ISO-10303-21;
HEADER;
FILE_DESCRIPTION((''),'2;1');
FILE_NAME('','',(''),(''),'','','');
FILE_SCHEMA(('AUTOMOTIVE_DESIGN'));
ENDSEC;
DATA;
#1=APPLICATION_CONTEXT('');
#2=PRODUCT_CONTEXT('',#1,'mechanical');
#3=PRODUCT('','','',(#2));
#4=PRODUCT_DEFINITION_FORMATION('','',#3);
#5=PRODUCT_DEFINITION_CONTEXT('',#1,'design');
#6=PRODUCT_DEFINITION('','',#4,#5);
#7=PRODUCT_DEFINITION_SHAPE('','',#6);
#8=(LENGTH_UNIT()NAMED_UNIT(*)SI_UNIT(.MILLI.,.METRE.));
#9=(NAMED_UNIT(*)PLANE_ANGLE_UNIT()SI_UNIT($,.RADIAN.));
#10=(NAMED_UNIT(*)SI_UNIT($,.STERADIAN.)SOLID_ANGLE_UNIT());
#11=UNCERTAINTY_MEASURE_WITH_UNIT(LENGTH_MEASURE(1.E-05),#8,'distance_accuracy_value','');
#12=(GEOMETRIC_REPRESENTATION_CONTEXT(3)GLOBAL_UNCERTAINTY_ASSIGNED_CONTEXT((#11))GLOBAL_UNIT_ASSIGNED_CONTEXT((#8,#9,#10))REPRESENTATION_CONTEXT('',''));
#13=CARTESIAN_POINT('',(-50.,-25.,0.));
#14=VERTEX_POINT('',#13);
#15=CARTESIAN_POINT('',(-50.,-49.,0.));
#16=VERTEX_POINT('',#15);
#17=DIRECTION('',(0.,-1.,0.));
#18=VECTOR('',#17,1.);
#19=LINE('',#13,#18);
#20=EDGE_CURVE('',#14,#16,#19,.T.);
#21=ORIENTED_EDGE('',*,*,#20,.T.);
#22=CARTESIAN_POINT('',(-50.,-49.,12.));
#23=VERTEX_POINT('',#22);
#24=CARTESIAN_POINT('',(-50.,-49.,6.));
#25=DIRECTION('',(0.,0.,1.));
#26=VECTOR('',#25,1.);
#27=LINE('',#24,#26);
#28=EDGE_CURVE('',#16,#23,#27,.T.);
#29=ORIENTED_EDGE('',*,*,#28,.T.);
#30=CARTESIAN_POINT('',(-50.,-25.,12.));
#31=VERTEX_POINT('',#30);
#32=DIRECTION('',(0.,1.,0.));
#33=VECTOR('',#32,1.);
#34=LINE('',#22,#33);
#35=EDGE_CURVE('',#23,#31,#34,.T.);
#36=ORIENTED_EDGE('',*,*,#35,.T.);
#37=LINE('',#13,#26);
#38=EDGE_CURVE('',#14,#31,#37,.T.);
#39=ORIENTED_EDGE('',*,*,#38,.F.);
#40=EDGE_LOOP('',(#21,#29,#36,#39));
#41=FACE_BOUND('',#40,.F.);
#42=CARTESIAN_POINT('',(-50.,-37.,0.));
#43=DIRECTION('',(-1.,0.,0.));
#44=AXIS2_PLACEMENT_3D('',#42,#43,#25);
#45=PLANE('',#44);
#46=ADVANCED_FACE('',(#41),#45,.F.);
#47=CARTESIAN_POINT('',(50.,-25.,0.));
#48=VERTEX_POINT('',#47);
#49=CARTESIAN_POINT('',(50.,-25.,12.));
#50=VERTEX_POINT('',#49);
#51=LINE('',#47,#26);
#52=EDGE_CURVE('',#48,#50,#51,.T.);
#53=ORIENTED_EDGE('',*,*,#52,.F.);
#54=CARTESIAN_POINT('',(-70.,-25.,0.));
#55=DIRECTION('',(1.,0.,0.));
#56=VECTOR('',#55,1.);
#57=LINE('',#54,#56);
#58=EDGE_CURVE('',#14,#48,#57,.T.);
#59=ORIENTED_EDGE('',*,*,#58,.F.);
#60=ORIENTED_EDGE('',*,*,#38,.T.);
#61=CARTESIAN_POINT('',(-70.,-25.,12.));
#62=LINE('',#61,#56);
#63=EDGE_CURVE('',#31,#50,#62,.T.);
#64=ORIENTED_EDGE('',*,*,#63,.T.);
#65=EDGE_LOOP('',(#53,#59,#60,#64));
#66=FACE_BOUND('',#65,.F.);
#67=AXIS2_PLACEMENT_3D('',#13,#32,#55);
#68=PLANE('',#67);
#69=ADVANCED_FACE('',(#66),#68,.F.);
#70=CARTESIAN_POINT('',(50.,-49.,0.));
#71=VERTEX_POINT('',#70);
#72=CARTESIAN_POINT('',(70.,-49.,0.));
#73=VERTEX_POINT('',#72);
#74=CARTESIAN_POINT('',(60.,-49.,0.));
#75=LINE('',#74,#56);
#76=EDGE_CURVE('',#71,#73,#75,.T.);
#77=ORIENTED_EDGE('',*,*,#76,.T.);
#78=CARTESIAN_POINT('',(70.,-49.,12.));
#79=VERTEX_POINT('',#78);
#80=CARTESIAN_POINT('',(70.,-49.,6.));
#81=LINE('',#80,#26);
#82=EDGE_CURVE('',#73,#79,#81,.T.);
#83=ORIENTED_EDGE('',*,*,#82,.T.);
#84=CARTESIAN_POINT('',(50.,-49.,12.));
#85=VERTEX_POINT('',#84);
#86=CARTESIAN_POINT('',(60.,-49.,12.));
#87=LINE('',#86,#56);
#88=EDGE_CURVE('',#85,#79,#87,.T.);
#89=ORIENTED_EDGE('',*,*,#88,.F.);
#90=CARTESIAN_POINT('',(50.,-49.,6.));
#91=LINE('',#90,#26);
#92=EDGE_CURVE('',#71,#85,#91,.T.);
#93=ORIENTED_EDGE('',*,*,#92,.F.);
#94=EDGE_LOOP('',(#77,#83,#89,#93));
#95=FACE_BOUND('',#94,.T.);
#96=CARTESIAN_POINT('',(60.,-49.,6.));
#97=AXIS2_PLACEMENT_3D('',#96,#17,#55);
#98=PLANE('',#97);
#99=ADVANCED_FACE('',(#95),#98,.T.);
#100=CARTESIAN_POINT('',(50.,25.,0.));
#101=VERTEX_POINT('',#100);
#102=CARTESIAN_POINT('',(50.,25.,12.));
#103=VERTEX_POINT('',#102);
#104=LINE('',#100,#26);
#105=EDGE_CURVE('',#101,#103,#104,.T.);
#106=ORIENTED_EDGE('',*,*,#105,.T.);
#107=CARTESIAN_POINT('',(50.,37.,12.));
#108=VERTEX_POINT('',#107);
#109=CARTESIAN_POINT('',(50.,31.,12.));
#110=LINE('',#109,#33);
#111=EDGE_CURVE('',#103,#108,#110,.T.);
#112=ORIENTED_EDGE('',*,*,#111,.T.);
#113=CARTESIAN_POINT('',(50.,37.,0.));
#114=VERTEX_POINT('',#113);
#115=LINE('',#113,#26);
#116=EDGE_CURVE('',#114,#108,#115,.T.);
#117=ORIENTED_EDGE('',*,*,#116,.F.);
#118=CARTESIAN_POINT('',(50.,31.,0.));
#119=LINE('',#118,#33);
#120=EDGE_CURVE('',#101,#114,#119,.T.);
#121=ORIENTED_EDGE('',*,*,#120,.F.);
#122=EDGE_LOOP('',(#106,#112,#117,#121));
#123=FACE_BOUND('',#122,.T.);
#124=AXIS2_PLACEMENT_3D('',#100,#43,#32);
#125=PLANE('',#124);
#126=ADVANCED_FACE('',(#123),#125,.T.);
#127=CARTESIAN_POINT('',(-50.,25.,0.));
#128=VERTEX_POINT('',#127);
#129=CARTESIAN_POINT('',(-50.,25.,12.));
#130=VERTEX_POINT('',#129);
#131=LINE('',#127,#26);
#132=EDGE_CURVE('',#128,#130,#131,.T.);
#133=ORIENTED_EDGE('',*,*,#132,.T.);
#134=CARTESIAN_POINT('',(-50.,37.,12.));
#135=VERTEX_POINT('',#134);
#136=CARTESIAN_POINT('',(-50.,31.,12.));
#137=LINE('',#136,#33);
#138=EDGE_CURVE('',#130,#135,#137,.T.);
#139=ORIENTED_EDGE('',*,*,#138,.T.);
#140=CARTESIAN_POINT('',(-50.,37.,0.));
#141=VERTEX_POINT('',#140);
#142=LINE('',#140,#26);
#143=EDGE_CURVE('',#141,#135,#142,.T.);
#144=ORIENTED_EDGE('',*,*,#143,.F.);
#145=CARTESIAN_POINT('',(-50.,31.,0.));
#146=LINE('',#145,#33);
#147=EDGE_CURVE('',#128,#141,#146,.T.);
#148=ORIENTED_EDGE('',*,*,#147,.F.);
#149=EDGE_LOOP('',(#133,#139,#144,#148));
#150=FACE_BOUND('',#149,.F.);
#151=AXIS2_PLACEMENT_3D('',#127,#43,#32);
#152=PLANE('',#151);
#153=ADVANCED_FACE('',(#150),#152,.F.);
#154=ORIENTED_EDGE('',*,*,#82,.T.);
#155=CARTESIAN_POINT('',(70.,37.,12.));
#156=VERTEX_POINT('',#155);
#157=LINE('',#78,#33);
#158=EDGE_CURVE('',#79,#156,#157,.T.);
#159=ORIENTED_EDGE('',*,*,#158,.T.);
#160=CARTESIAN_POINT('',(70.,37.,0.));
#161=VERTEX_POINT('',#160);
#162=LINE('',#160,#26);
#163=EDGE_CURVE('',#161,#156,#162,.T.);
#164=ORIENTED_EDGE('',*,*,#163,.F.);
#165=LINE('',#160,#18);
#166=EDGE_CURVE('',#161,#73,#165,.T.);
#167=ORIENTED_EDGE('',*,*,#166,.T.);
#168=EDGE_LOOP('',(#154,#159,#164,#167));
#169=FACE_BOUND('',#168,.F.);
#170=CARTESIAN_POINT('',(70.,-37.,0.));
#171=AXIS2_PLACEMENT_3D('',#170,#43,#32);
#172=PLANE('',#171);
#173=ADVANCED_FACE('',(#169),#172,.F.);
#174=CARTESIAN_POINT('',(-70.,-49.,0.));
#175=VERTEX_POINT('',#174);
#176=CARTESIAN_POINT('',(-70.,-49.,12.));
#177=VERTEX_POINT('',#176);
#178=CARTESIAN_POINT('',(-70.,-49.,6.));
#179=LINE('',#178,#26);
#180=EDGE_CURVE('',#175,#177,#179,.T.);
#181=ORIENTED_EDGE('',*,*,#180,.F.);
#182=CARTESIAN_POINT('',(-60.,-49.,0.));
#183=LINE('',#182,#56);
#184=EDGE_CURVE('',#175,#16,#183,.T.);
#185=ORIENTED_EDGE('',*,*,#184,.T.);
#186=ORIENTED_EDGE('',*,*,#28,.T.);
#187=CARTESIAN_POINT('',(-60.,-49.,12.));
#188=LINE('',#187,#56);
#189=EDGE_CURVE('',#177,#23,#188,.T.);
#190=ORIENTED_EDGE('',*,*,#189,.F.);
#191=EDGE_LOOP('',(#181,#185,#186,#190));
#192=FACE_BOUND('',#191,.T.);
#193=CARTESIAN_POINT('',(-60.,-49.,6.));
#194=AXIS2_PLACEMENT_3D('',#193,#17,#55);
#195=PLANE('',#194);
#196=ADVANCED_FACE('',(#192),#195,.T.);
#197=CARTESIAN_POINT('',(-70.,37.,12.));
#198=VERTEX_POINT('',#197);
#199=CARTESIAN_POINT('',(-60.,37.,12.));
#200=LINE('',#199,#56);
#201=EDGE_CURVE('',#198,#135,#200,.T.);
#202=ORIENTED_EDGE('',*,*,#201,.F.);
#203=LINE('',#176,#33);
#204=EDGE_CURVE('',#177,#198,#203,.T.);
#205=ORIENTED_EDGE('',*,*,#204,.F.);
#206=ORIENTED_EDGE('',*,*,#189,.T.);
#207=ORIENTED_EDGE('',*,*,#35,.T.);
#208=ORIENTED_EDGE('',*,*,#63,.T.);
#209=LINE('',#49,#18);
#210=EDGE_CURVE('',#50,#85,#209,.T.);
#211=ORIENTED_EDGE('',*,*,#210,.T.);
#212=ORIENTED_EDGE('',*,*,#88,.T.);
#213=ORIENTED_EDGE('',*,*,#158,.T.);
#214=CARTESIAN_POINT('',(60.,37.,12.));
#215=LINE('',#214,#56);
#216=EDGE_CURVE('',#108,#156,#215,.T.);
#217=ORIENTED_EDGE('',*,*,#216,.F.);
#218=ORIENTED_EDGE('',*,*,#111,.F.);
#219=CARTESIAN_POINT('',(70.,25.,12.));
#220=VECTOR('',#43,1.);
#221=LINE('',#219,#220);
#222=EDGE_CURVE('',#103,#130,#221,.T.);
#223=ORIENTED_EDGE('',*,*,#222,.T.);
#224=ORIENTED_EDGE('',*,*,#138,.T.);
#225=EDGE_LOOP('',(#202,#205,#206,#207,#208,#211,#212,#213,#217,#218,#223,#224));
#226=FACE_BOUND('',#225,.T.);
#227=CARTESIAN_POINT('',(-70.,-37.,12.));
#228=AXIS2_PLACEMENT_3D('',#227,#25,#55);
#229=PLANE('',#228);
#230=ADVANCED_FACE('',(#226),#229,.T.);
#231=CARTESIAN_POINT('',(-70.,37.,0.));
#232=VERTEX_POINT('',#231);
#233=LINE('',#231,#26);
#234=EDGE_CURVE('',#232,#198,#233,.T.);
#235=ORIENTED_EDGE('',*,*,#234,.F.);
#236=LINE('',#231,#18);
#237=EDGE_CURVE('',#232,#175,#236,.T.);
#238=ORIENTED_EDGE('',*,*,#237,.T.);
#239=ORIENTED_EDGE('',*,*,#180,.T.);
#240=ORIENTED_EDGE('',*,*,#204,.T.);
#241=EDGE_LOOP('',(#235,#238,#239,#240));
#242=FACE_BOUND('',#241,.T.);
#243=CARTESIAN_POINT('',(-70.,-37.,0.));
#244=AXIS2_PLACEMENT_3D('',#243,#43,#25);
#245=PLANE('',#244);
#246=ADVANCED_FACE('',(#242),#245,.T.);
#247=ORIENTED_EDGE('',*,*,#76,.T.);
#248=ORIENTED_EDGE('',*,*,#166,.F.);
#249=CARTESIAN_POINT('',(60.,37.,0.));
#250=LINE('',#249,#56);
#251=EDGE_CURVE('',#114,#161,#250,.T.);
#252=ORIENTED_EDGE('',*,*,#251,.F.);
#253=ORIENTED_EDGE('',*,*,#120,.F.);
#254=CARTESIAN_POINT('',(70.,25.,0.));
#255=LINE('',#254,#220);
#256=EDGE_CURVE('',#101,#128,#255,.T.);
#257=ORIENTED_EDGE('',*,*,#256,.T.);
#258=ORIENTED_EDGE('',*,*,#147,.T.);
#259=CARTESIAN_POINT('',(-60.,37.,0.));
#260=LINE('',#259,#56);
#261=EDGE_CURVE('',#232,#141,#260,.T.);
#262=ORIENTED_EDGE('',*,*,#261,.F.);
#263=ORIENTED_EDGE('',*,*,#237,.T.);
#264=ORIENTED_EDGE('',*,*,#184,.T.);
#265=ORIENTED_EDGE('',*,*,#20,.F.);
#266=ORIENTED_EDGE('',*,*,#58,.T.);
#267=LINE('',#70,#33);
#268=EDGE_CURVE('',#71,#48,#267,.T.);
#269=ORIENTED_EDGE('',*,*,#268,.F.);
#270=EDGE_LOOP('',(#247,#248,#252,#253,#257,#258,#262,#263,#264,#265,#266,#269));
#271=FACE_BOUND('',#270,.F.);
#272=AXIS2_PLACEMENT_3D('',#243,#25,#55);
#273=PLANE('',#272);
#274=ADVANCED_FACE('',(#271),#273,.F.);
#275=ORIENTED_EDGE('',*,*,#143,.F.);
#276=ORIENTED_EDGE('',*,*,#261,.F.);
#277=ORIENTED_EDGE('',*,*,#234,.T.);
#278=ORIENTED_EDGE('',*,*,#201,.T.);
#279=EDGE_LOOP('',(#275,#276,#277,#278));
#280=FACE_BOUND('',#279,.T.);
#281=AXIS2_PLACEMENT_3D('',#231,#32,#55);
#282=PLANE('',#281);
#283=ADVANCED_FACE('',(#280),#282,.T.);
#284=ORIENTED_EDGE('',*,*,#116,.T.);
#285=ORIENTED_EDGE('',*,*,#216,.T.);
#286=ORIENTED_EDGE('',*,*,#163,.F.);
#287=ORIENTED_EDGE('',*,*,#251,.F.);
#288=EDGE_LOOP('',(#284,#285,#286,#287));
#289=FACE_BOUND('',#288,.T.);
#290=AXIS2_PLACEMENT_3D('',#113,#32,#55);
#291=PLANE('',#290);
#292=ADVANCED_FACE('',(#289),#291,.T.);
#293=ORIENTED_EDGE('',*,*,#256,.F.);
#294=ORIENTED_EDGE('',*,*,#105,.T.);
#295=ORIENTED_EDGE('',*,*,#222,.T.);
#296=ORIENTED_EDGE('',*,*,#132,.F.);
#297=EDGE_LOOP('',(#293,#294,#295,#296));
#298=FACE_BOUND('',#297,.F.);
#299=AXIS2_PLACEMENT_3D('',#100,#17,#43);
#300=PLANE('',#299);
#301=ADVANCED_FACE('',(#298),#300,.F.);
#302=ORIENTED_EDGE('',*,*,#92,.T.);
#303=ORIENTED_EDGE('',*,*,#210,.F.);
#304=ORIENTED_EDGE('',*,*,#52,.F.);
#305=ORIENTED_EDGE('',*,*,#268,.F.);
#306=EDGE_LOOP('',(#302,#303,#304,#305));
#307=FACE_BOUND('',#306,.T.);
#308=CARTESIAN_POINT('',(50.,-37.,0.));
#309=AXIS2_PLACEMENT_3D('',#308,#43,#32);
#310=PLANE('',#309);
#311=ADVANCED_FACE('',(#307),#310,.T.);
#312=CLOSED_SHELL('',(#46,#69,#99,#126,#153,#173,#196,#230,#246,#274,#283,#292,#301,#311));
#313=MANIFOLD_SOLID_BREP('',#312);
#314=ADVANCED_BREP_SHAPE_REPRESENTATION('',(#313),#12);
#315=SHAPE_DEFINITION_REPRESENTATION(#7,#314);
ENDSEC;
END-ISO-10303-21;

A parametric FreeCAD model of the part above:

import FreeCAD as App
import Part
import Sketcher
from FreeCAD import Vector


def add_polygon(sketch, points):
    """Adds a closed chain of lines whose ends are joined by coincident constraints."""
    first, n = sketch.GeometryCount, len(points)
    for a, b in zip(points, points[1:] + points[:1]):
        sketch.addGeometry(Part.LineSegment(App.Vector(*a, 0), App.Vector(*b, 0)), False)
    for i in range(n):
        sketch.addConstraint(Sketcher.Constraint("Coincident", first + i, 2, first + (i + 1) % n, 1))

doc = App.newDocument("Part")
body = doc.addObject("PartDesign::Body", "Body")

# Sketch on XY plane
sketch1 = body.newObject("Sketcher::SketchObject", "Sketch")
sketch1.AttachmentSupport = (doc.getObject("XY_Plane"), [""])
sketch1.MapMode = "FlatFace"
add_polygon(sketch1, [(70, 37), (50, 37), (50, 25), (-50, 25), (-50, 37), (-70, 37), (-70, -37), (-50, -37), (-50, -25), (50, -25), (50, -37), (70, -37)])  # lines 0-11
sketch1.addConstraint(Sketcher.Constraint("Horizontal", 0))
sketch1.addConstraint(Sketcher.Constraint("Vertical", 1))
sketch1.addConstraint(Sketcher.Constraint("Horizontal", 2))
sketch1.addConstraint(Sketcher.Constraint("Vertical", 3))
sketch1.addConstraint(Sketcher.Constraint("Horizontal", 4))
sketch1.addConstraint(Sketcher.Constraint("Vertical", 5))
sketch1.addConstraint(Sketcher.Constraint("Horizontal", 6))
sketch1.addConstraint(Sketcher.Constraint("Vertical", 7))
sketch1.addConstraint(Sketcher.Constraint("Horizontal", 8))
sketch1.addConstraint(Sketcher.Constraint("Vertical", 9))
sketch1.addConstraint(Sketcher.Constraint("Horizontal", 10))
sketch1.addConstraint(Sketcher.Constraint("Vertical", 11))
sketch1.addConstraint(Sketcher.Constraint("Symmetric", 0, 2, 6, 2, -1, 1))
sketch1.addConstraint(Sketcher.Constraint("Symmetric", 2, 2, 8, 2, -1, 1))
sketch1.addConstraint(Sketcher.Constraint("Symmetric", 4, 2, 10, 2, -1, 1))
sketch1.addConstraint(Sketcher.Constraint("Symmetric", 0, 2, 3, 2, -2))
sketch1.addConstraint(Sketcher.Constraint("DistanceX", 0, 2, 0, 1, 20.0))
sketch1.addConstraint(Sketcher.Constraint("DistanceX", 2, 2, 2, 1, 100.0))
sketch1.addConstraint(Sketcher.Constraint("DistanceY", 1, 2, 1, 1, 12.0))
sketch1.addConstraint(Sketcher.Constraint("DistanceY", 5, 2, 5, 1, 74.0))
pad1 = body.newObject("PartDesign::Pad", "Pad")
pad1.Profile = sketch1
pad1.Length = 12

# Sketch on XZ plane
sketch2 = body.newObject("Sketcher::SketchObject", "Sketch001")
sketch2.AttachmentSupport = (doc.getObject("XZ_Plane"), [""])
sketch2.MapMode = "FlatFace"
sketch2.AttachmentOffset = App.Placement(Vector(0, 0, 37), App.Rotation())
add_polygon(sketch2, [(-70, 12), (-70, 0), (-50, 0), (-50, 12)])  # lines 0-3
add_polygon(sketch2, [(50, 12), (50, 0), (70, 0), (70, 12)])  # lines 4-7
sketch2.addConstraint(Sketcher.Constraint("Vertical", 0))
sketch2.addConstraint(Sketcher.Constraint("Horizontal", 1))
sketch2.addConstraint(Sketcher.Constraint("Vertical", 2))
sketch2.addConstraint(Sketcher.Constraint("Horizontal", 3))
sketch2.addConstraint(Sketcher.Constraint("Vertical", 4))
sketch2.addConstraint(Sketcher.Constraint("Horizontal", 5))
sketch2.addConstraint(Sketcher.Constraint("Vertical", 6))
sketch2.addConstraint(Sketcher.Constraint("Horizontal", 7))
sketch2.addConstraint(Sketcher.Constraint("Symmetric", 1, 2, 4, 2, -1, 1))
sketch2.addConstraint(Sketcher.Constraint("Symmetric", 0, 2, 5, 2, -2))
sketch2.addConstraint(Sketcher.Constraint("Horizontal", 3, 2, 6, 2))
sketch2.addConstraint(Sketcher.Constraint("DistanceX", 1, 1, 1, 2, 20.0))
sketch2.addConstraint(Sketcher.Constraint("DistanceY", 0, 2, 0, 1, 12.0))
sketch2.addConstraint(Sketcher.Constraint("DistanceX", 0, 2, -1, 1, 70.0))
pad2 = body.newObject("PartDesign::Pad", "Pad001")
pad2.Profile = sketch2
pad2.Length = 12

doc.recompute()
